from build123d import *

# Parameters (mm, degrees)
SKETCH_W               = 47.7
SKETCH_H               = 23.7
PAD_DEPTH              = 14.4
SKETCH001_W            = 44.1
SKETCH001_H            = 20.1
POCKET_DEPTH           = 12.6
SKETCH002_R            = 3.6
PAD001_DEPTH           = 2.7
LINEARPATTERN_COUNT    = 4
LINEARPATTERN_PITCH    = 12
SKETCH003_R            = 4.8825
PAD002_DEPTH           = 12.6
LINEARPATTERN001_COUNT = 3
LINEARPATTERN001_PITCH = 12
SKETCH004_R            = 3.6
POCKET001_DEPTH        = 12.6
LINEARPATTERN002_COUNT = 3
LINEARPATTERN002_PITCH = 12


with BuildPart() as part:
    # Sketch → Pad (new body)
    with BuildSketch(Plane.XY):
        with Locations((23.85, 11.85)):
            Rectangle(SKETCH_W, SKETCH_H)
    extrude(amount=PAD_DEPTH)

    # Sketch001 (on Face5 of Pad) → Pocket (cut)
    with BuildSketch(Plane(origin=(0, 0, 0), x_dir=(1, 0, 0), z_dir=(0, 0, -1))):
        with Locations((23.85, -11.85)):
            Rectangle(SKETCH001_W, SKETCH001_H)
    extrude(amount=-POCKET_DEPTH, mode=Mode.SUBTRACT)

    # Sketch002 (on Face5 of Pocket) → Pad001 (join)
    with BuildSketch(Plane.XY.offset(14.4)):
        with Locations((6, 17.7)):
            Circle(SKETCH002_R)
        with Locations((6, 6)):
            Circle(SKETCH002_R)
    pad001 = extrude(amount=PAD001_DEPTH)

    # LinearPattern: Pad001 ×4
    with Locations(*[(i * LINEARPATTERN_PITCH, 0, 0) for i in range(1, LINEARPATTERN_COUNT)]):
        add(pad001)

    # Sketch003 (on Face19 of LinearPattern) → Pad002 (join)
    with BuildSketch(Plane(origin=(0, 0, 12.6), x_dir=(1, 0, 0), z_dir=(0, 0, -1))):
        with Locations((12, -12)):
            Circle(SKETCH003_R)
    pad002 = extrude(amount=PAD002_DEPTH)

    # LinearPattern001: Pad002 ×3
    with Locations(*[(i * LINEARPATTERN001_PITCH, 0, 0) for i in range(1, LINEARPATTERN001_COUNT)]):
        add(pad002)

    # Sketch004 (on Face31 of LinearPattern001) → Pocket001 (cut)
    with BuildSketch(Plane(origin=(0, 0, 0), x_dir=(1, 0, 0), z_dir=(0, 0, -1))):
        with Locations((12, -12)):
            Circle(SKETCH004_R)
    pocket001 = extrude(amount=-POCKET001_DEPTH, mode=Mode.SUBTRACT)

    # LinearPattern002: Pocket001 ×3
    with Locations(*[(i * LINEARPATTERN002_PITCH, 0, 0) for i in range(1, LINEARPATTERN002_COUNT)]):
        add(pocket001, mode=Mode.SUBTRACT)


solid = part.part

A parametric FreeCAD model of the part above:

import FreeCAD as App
import Part
import Sketcher

V = App.Vector


def add_polygon(sketch, points):
    """Adds a closed chain of lines whose ends are joined by coincident constraints."""
    first, n = sketch.GeometryCount, len(points)
    for a, b in zip(points, points[1:] + points[:1]):
        sketch.addGeometry(Part.LineSegment(App.Vector(*a, 0), App.Vector(*b, 0)), False)
    for i in range(n):
        sketch.addConstraint(Sketcher.Constraint("Coincident", first + i, 2, first + (i + 1) % n, 1))

doc = App.newDocument("Part")
body = doc.addObject("PartDesign::Body", "Body")

# Sketch on XY plane
sketch1 = body.newObject("Sketcher::SketchObject", "Sketch")
sketch1.AttachmentSupport = (doc.getObject("XY_Plane"), [""])
sketch1.MapMode = "FlatFace"
add_polygon(sketch1, [(0, 23.7), (0, 0), (47.7, 0), (47.7, 23.7)])  # lines 0-3
sketch1.addConstraint(Sketcher.Constraint("Vertical", 0))
sketch1.addConstraint(Sketcher.Constraint("Horizontal", 1))
sketch1.addConstraint(Sketcher.Constraint("Vertical", 2))
sketch1.addConstraint(Sketcher.Constraint("Horizontal", 3))
sketch1.addConstraint(Sketcher.Constraint("Coincident", 0, 2, -1, 1))
sketch1.addConstraint(Sketcher.Constraint("DistanceX", 1, 1, 1, 2, 47.7))
sketch1.addConstraint(Sketcher.Constraint("DistanceY", 0, 2, 0, 1, 23.7))
pad1 = body.newObject("PartDesign::Pad", "Pad")
pad1.Profile = sketch1
pad1.Length = 14.4

# Sketch on XY plane
sketch2 = body.newObject("Sketcher::SketchObject", "Sketch001")
sketch2.AttachmentSupport = (doc.getObject("XY_Plane"), [""])
sketch2.MapMode = "FlatFace"
add_polygon(sketch2, [(1.8, 1.8), (1.8, 21.9), (45.9, 21.9), (45.9, 1.8)])  # lines 0-3
sketch2.addConstraint(Sketcher.Constraint("Vertical", 0))
sketch2.addConstraint(Sketcher.Constraint("Horizontal", 1))
sketch2.addConstraint(Sketcher.Constraint("Vertical", 2))
sketch2.addConstraint(Sketcher.Constraint("Horizontal", 3))
sketch2.addConstraint(Sketcher.Constraint("DistanceX", 1, 1, 1, 2, 44.1))
sketch2.addConstraint(Sketcher.Constraint("DistanceY", 0, 1, 0, 2, 20.1))
sketch2.addConstraint(Sketcher.Constraint("DistanceX", -1, 1, 0, 2, 1.8))
sketch2.addConstraint(Sketcher.Constraint("DistanceY", -1, 1, 0, 2, 21.9))
pocket1 = body.newObject("PartDesign::Pocket", "Pocket")
pocket1.Profile = sketch2
pocket1.Length = 12.6
pocket1.Reversed = True

# Sketch on XY plane
sketch3 = body.newObject("Sketcher::SketchObject", "Sketch002")
sketch3.AttachmentSupport = (doc.getObject("XY_Plane"), [""])
sketch3.MapMode = "FlatFace"
sketch3.AttachmentOffset = App.Placement(V(0, 0, 14.4), App.Rotation())
sketch3.addGeometry(Part.Circle(V(6, 17.7, 0), V(0, 0, 1), 3.6), False)
sketch3.addGeometry(Part.Circle(V(6, 6, 0), V(0, 0, 1), 3.6), False)
sketch3.addConstraint(Sketcher.Constraint("Equal", 0, 1))
sketch3.addConstraint(Sketcher.Constraint("Vertical", 0, 3, 1, 3))
sketch3.addConstraint(Sketcher.Constraint("Diameter", 0, 7.2))
sketch3.addConstraint(Sketcher.Constraint("DistanceX", -1, 1, 0, 3, 6.0))
sketch3.addConstraint(Sketcher.Constraint("DistanceY", -1, 1, 1, 3, 6.0))
sketch3.addConstraint(Sketcher.Constraint("DistanceY", -1, 1, 0, 3, 17.7))
pad2 = body.newObject("PartDesign::Pad", "Pad001")
pad2.Profile = sketch3
pad2.Length = 2.7
doc.recompute()

linearpattern = body.newObject("PartDesign::LinearPattern", "LinearPattern")
linearpattern.Originals = [pad2]
linearpattern.Direction = (doc.getObject("X_Axis"), [""])
linearpattern.Mode = "offset"
linearpattern.Offset = 12
linearpattern.Occurrences = 4
body.Tip = linearpattern

# Sketch on XY plane
sketch4 = body.newObject("Sketcher::SketchObject", "Sketch003")
sketch4.AttachmentSupport = (doc.getObject("XY_Plane"), [""])
sketch4.MapMode = "FlatFace"
sketch4.AttachmentOffset = App.Placement(V(0, 0, 12.6), App.Rotation())
sketch4.addGeometry(Part.Circle(V(12, 12, 0), V(0, 0, 1), 4.8825), False)
sketch4.addConstraint(Sketcher.Constraint("Diameter", 0, 9.765))
sketch4.addConstraint(Sketcher.Constraint("DistanceX", -1, 1, 0, 3, 12.0))
sketch4.addConstraint(Sketcher.Constraint("DistanceY", -1, 1, 0, 3, 12.0))
pad3 = body.newObject("PartDesign::Pad", "Pad002")
pad3.Profile = sketch4
pad3.Length = 12.6
pad3.Reversed = True
doc.recompute()

linearpattern2 = body.newObject("PartDesign::LinearPattern", "LinearPattern001")
linearpattern2.Originals = [pad3]
linearpattern2.Direction = (doc.getObject("X_Axis"), [""])
linearpattern2.Mode = "offset"
linearpattern2.Offset = 12
linearpattern2.Occurrences = 3
body.Tip = linearpattern2

# Sketch on XY plane
sketch5 = body.newObject("Sketcher::SketchObject", "Sketch004")
sketch5.AttachmentSupport = (doc.getObject("XY_Plane"), [""])
sketch5.MapMode = "FlatFace"
sketch5.addGeometry(Part.Circle(V(12, 12, 0), V(0, 0, 1), 3.6), False)
sketch5.addConstraint(Sketcher.Constraint("Diameter", 0, 7.2))
sketch5.addConstraint(Sketcher.Constraint("DistanceX", -1, 1, 0, 3, 12.0))
sketch5.addConstraint(Sketcher.Constraint("DistanceY", -1, 1, 0, 3, 12.0))
pocket2 = body.newObject("PartDesign::Pocket", "Pocket001")
pocket2.Profile = sketch5
pocket2.Length = 12.6
pocket2.Reversed = True
doc.recompute()

linearpattern3 = body.newObject("PartDesign::LinearPattern", "LinearPattern002")
linearpattern3.Originals = [pocket2]
linearpattern3.Direction = (doc.getObject("X_Axis"), [""])
linearpattern3.Mode = "offset"
linearpattern3.Offset = 12
linearpattern3.Occurrences = 3
body.Tip = linearpattern3

doc.recompute()
